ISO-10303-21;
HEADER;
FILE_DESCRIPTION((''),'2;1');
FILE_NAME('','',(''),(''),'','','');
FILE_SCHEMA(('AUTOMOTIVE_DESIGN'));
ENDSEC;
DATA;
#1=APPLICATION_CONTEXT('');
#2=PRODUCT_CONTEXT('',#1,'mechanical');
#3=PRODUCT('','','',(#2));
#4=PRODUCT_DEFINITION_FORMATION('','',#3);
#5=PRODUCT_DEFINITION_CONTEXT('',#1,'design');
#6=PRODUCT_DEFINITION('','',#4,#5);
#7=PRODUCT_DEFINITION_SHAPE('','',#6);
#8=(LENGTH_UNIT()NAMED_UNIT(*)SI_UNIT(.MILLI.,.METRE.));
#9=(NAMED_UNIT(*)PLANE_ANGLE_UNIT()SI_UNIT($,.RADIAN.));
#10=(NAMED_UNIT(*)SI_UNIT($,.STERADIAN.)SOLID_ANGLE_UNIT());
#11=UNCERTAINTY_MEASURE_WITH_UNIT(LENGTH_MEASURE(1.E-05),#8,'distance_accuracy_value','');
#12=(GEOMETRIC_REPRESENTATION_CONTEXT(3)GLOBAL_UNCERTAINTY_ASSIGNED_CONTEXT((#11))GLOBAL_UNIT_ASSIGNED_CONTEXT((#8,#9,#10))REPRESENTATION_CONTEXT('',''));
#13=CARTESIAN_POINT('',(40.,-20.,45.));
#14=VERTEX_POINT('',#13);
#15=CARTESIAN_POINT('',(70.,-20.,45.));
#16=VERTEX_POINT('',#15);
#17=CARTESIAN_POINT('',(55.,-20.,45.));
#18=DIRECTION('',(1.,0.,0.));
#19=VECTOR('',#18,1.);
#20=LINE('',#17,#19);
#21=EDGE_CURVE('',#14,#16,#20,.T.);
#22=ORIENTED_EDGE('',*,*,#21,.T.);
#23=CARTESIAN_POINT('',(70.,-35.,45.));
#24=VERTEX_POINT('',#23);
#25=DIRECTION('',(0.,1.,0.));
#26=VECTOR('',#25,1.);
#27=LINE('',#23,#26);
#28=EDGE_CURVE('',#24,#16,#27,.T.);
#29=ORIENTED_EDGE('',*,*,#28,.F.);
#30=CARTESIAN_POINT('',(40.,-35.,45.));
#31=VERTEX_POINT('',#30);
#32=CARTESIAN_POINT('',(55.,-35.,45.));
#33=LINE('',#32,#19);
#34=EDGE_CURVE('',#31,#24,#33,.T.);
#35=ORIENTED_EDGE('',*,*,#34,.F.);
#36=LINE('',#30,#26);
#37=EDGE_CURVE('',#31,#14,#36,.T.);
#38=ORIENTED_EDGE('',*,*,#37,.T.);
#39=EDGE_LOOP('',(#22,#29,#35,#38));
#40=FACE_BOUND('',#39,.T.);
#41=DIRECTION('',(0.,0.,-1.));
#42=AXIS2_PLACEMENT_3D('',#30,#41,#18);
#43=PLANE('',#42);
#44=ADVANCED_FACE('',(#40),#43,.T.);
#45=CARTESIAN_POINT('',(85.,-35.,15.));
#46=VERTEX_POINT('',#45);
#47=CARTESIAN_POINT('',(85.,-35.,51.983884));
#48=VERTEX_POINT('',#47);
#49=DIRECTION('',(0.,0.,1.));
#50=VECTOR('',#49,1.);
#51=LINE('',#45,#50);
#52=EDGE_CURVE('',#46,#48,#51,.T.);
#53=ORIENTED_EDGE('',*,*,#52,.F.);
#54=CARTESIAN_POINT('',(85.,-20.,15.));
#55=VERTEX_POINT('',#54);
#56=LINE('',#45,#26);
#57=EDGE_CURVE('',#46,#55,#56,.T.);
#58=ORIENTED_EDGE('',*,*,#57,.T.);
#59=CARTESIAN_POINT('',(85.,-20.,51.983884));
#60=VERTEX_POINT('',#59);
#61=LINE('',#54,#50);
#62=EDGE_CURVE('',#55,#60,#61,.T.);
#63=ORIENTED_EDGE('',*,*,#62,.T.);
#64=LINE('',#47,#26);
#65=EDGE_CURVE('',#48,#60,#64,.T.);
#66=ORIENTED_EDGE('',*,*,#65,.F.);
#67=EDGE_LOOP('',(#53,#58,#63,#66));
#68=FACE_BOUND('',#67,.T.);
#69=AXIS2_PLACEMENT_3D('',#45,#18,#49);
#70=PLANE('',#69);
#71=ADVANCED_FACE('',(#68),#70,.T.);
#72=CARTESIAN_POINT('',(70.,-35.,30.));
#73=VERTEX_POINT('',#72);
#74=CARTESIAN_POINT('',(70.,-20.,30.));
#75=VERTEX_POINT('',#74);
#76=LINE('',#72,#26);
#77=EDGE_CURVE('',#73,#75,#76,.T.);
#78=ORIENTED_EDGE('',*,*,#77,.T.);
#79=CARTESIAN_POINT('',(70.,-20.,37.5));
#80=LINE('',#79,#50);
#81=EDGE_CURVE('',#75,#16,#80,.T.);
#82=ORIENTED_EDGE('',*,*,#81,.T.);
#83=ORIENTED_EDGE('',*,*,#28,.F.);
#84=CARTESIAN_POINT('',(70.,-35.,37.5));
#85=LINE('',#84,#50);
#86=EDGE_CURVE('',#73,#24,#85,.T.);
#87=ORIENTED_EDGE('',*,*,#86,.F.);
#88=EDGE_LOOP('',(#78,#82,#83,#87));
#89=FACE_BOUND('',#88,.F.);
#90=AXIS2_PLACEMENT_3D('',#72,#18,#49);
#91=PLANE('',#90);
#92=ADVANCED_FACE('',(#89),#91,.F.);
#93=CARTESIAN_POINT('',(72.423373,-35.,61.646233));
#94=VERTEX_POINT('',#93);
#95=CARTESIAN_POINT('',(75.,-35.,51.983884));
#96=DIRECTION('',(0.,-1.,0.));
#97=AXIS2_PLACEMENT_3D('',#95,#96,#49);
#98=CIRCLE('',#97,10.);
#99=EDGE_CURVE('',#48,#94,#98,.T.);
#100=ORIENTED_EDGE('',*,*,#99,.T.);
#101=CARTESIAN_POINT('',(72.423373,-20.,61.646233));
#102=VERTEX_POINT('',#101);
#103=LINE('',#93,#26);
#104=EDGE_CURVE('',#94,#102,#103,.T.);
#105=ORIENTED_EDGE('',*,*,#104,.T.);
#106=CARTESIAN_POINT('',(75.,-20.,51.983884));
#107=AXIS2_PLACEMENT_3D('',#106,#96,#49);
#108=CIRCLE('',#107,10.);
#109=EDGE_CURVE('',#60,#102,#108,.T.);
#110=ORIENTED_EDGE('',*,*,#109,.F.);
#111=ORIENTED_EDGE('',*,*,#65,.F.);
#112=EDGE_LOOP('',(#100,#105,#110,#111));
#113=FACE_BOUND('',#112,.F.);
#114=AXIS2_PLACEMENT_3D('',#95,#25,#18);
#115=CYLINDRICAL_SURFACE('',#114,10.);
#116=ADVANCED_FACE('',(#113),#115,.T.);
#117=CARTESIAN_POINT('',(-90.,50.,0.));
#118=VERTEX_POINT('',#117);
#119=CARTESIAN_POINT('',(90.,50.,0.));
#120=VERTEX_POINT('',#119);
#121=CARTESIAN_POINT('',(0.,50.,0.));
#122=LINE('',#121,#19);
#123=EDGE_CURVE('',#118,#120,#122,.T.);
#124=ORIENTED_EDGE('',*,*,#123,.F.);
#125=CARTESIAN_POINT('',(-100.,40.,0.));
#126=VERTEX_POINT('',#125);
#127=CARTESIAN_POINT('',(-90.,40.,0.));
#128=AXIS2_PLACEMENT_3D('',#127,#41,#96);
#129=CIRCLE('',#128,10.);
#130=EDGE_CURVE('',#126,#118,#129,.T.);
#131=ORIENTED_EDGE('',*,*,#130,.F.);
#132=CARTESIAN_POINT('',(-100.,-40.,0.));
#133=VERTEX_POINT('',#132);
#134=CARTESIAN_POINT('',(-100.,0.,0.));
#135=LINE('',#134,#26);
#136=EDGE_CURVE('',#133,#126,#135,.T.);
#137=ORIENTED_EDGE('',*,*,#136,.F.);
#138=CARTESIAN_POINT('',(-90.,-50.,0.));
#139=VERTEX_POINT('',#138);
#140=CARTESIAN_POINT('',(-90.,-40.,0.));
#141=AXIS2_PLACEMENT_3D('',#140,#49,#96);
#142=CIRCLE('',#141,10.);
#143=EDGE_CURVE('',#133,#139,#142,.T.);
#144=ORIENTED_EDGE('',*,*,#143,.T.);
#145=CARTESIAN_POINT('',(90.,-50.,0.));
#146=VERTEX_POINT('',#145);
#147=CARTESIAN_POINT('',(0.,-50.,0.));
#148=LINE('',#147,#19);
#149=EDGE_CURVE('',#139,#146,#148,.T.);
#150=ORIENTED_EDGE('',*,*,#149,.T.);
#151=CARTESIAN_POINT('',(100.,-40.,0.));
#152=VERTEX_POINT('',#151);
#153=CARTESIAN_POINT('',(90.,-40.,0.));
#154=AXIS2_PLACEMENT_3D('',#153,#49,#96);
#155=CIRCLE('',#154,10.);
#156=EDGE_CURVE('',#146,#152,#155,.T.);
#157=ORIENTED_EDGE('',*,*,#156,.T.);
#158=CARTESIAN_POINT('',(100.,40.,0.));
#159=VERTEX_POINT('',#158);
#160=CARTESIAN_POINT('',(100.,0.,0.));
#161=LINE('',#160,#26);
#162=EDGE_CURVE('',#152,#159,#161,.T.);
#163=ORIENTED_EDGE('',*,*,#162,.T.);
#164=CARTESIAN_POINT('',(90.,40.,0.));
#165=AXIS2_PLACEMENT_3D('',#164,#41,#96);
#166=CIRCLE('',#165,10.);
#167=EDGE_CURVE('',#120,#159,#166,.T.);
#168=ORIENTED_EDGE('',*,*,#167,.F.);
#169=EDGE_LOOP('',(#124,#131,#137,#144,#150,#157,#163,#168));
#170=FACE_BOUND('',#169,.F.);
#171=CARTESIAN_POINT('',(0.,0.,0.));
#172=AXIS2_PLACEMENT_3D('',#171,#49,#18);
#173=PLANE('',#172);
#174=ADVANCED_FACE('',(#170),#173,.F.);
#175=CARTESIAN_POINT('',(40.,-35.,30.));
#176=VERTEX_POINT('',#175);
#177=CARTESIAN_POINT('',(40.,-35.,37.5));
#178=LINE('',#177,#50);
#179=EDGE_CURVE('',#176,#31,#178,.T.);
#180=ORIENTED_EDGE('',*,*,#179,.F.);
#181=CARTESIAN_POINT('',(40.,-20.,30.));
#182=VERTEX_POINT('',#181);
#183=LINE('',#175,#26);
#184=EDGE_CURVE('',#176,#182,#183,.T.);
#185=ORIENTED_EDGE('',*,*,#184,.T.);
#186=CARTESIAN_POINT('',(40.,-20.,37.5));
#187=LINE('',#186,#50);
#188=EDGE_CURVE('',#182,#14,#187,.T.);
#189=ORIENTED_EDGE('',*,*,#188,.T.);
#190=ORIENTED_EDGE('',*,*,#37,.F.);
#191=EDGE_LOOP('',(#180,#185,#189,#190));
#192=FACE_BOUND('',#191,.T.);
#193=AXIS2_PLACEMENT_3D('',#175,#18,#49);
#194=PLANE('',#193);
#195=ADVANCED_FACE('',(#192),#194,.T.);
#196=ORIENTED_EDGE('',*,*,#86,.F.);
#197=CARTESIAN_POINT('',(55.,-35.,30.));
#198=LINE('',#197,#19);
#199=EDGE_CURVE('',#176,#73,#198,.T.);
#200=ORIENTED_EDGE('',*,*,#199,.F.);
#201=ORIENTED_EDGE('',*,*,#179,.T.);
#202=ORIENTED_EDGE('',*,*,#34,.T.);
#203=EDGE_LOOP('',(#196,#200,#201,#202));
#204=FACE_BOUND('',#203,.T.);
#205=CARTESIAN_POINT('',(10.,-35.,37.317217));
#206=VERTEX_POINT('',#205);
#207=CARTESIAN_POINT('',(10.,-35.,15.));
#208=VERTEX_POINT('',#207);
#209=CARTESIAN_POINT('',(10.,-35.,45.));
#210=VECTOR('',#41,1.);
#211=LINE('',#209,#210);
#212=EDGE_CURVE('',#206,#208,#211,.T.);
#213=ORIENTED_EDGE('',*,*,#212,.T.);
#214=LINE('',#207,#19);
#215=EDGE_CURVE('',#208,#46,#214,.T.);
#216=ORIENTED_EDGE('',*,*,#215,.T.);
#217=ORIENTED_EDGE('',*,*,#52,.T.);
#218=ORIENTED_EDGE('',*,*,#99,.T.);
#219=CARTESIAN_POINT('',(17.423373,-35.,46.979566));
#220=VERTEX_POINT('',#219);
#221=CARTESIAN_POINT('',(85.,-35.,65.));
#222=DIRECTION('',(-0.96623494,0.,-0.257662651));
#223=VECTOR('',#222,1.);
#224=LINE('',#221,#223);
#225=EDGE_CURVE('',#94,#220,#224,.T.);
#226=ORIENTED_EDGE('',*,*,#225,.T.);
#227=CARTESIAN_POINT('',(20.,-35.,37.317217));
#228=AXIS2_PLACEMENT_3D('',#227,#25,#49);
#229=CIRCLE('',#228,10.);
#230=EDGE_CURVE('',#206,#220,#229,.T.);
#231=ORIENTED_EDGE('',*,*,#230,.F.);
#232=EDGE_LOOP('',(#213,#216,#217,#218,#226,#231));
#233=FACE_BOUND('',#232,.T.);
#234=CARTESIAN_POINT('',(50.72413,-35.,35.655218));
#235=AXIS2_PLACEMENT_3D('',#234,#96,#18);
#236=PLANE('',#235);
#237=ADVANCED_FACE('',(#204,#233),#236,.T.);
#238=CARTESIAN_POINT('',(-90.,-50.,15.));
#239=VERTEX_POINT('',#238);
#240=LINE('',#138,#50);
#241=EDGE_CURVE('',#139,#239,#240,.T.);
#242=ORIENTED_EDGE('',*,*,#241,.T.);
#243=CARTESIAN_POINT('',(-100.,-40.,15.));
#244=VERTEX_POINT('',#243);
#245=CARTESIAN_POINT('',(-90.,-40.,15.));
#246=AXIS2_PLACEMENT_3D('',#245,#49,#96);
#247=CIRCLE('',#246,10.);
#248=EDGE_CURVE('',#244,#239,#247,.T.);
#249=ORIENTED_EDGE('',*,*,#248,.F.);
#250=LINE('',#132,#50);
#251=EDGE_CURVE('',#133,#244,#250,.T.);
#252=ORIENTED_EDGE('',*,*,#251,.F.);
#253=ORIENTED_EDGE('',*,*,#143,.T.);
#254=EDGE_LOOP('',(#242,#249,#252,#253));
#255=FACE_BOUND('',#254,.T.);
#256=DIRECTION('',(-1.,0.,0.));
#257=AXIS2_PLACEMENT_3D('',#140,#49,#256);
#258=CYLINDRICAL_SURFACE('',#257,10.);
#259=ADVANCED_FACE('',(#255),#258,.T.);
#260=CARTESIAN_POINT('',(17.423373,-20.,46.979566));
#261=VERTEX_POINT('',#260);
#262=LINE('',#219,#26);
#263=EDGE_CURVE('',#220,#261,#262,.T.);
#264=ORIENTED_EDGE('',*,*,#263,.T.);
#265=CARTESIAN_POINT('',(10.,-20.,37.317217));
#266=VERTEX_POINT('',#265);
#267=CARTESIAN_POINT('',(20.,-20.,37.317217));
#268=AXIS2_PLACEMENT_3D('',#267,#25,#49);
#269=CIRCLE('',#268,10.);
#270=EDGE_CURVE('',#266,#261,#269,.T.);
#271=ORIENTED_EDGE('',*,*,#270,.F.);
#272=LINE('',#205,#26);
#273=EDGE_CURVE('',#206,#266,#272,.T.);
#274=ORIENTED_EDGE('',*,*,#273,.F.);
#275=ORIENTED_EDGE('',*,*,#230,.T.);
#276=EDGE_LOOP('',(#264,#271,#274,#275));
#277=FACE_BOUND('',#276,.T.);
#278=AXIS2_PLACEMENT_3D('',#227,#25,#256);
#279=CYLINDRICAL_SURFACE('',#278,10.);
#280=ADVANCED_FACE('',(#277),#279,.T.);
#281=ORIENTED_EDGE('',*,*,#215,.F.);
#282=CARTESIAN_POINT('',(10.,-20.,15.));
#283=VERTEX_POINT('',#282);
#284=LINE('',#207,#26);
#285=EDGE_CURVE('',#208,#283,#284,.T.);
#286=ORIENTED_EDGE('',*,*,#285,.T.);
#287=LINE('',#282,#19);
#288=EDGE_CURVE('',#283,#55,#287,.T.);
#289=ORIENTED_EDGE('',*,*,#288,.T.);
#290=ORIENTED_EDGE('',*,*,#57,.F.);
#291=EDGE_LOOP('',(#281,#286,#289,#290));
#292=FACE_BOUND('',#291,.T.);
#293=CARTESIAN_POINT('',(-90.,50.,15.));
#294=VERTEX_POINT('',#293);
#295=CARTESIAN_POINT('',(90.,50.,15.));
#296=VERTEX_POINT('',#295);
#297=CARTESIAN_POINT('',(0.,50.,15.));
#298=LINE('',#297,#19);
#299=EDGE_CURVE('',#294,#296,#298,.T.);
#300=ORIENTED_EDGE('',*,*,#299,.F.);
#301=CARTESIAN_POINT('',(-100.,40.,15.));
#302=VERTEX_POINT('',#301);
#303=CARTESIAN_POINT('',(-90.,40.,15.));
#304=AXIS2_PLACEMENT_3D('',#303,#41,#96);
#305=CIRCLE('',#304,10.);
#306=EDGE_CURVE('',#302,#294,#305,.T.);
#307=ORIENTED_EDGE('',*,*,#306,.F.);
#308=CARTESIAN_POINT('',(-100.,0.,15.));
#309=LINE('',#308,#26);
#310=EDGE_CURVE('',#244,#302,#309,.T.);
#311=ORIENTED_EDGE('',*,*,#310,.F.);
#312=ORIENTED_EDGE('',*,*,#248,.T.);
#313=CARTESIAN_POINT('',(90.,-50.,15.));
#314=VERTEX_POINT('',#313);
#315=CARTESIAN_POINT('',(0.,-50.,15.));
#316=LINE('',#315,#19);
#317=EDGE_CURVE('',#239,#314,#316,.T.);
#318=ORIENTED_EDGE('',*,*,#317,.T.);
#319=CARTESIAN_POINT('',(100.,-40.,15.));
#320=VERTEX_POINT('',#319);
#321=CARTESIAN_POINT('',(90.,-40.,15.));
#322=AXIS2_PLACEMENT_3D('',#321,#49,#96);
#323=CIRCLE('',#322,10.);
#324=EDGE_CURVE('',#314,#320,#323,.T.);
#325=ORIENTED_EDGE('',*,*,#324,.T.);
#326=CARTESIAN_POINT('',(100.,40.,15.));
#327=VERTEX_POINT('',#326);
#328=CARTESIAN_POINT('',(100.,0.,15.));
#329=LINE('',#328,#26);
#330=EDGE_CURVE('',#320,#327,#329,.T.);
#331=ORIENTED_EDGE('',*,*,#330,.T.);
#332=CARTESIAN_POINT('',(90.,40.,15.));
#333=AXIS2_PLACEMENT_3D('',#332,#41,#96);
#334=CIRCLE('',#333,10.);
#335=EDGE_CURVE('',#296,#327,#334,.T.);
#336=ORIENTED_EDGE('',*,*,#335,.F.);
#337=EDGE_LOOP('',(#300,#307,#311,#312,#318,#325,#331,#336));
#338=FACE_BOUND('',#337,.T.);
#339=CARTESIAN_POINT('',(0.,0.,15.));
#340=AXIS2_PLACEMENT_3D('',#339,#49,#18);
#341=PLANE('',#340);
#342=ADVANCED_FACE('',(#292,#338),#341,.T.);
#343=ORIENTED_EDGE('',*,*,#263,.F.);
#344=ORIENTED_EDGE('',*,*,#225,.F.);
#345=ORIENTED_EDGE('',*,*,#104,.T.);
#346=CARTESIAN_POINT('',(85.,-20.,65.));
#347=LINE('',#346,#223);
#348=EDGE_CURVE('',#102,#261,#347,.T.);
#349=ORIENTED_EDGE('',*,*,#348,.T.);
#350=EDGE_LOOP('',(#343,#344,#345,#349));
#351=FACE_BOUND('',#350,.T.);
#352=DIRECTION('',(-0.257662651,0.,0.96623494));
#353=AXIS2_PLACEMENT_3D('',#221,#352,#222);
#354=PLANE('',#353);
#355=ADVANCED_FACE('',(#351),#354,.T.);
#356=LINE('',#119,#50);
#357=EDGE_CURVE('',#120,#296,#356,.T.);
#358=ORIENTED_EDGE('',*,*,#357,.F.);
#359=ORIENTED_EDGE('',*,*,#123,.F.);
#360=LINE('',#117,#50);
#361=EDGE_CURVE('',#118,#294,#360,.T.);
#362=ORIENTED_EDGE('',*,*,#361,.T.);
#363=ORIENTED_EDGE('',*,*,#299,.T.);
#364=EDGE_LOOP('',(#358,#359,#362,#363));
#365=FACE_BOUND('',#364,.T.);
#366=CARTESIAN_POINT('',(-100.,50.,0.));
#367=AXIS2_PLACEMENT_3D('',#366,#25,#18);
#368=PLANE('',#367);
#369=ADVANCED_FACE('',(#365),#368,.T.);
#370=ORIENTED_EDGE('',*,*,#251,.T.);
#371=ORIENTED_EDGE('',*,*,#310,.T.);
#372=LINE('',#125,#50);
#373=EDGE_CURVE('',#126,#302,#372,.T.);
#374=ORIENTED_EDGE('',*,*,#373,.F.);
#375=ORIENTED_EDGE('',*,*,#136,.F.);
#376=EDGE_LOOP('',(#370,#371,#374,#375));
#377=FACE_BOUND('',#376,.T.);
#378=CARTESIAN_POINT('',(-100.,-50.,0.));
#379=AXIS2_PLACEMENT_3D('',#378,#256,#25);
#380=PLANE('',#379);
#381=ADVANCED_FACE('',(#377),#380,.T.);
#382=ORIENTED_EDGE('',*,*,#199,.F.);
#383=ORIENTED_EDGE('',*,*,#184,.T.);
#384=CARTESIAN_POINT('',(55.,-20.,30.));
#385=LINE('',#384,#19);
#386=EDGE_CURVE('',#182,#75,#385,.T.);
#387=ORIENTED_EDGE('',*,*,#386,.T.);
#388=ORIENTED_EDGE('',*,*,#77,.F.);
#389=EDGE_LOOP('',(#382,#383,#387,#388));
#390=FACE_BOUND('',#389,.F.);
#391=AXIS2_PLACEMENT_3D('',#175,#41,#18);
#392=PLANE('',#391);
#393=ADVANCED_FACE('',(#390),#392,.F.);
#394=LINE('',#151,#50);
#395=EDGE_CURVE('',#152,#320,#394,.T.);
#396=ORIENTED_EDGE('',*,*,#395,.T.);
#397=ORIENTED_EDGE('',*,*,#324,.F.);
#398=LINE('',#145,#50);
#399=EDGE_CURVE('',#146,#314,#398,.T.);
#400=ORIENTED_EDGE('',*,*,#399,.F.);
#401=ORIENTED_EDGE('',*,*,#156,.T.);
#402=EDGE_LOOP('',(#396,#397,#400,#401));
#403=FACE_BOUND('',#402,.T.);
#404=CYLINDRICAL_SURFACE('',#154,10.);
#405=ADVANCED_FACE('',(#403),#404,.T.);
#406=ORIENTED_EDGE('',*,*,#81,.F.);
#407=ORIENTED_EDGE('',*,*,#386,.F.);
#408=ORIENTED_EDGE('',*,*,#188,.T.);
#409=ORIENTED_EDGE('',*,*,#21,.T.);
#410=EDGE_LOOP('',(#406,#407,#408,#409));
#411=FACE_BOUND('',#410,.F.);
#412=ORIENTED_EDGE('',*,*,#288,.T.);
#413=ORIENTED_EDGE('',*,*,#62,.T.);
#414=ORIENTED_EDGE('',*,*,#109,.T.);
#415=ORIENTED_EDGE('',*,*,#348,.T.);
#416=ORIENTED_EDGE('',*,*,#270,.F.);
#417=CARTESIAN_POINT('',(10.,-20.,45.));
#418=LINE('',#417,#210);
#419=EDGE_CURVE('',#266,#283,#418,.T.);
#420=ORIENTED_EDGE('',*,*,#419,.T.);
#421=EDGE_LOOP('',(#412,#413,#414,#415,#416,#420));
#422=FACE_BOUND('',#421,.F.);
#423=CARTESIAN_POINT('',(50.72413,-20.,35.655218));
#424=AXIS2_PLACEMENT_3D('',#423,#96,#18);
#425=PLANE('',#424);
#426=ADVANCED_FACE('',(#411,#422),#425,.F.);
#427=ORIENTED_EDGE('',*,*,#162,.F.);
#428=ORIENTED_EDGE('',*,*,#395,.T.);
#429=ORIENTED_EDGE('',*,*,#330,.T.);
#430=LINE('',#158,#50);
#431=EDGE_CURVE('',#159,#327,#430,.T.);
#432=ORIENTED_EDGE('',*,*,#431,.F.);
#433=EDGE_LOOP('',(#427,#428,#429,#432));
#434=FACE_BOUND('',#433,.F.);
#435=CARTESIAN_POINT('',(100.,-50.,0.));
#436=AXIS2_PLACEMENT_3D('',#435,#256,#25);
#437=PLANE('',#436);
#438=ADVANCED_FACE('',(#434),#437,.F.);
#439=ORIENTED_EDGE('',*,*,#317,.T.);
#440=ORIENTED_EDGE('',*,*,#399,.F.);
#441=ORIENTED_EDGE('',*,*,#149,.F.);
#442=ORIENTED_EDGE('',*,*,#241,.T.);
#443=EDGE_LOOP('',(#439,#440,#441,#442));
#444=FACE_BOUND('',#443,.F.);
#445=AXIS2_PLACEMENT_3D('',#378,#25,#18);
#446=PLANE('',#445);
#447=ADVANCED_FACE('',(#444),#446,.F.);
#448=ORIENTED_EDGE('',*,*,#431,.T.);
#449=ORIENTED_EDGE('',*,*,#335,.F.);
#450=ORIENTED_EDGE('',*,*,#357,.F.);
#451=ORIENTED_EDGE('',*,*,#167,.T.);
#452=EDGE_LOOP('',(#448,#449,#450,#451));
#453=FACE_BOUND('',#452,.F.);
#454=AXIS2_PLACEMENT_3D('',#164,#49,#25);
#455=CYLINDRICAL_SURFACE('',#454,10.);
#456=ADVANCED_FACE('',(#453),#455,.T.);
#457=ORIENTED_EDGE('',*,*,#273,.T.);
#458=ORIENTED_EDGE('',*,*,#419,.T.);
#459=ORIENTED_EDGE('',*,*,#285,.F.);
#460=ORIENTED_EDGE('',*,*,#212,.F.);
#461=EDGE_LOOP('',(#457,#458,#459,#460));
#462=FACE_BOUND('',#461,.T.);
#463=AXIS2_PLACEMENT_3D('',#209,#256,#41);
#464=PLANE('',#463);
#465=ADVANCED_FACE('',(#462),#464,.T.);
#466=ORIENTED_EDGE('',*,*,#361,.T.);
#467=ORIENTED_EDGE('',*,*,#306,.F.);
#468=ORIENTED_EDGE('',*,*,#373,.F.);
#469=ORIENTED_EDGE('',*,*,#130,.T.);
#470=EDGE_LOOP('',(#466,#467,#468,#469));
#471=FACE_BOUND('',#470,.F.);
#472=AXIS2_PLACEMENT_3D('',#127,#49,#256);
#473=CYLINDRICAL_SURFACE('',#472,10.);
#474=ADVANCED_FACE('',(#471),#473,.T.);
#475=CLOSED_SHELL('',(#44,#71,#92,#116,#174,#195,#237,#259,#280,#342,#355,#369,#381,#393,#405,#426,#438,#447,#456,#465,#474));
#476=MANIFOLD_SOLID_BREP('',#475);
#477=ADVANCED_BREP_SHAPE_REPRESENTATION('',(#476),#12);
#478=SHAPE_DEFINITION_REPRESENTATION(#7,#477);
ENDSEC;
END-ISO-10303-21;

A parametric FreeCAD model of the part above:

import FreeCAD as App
import Part
import Sketcher
from FreeCAD import Vector
Q = App.Units.Quantity


def edges_at(feature, points):
    """Names of the edges that pass closest to the given points."""
    edges = feature.Shape.Edges
    near = lambda p: min(range(len(edges)), key=lambda i: edges[i].distToShape(Part.Vertex(*p))[0])
    return sorted({f"Edge{near(p) + 1}" for p in points})


def add_polygon(sketch, points):
    """Adds a closed chain of lines whose ends are joined by coincident constraints."""
    first, n = sketch.GeometryCount, len(points)
    for a, b in zip(points, points[1:] + points[:1]):
        sketch.addGeometry(Part.LineSegment(App.Vector(*a, 0), App.Vector(*b, 0)), False)
    for i in range(n):
        sketch.addConstraint(Sketcher.Constraint("Coincident", first + i, 2, first + (i + 1) % n, 1))

doc = App.newDocument("Part")
body = doc.addObject("PartDesign::Body", "Body")

sketch1 = body.newObject("Sketcher::SketchObject", "Sketch")
sketch1.AttachmentSupport = (doc.getObject("XY_Plane"), [""])
sketch1.MapMode = "FlatFace"
add_polygon(sketch1, [(-100, 50), (-100, -50), (100, -50), (100, 50)])
sketch1.addConstraint(Sketcher.Constraint("Vertical", 0))
sketch1.addConstraint(Sketcher.Constraint("Horizontal", 1))
sketch1.addConstraint(Sketcher.Constraint("Vertical", 2))
sketch1.addConstraint(Sketcher.Constraint("Horizontal", 3))
sketch1.addConstraint(Sketcher.Constraint("Symmetric", 0, 2, 2, 2, -1, 1))
sketch1.addConstraint(Sketcher.Constraint("DistanceX", 1, 1, 1, 2, Q("200 mm")))
sketch1.addConstraint(Sketcher.Constraint("DistanceY", 0, 2, 0, 1, Q("100 mm")))
pad1 = body.newObject("PartDesign::Pad", "Pad")
pad1.Profile = sketch1
pad1.Length = 15

sketch2 = body.newObject("Sketcher::SketchObject", "Sketch001")
sketch2.AttachmentSupport = (doc.getObject("XZ_Plane"), [""])
sketch2.MapMode = "FlatFace"
sketch2.AttachmentOffset = App.Placement(Vector(0, 0, 35), App.Rotation())
add_polygon(sketch2, [(10, 15), (85, 15), (85, 65), (10, 45)])
sketch2.addConstraint(Sketcher.Constraint("Horizontal", 0))
sketch2.addConstraint(Sketcher.Constraint("Vertical", 1))
sketch2.addConstraint(Sketcher.Constraint("Vertical", 3))
sketch2.addConstraint(Sketcher.Constraint("DistanceX", 0, 1, 0, 2, Q("75 mm")))
sketch2.addConstraint(Sketcher.Constraint("DistanceY", 1, 1, 1, 2, Q("50 mm")))
sketch2.addConstraint(Sketcher.Constraint("DistanceY", 3, 2, 3, 1, Q("30 mm")))
sketch2.addConstraint(Sketcher.Constraint("DistanceX", -1, 1, 0, 2, Q("85 mm")))
sketch2.addConstraint(Sketcher.Constraint("DistanceY", -1, 1, 0, 2, Q("15 mm")))
pad2 = body.newObject("PartDesign::Pad", "Pad001")
pad2.Profile = sketch2
pad2.Length = 15
pad2.Reversed = True

sketch3 = body.newObject("Sketcher::SketchObject", "Sketch002")
sketch3.AttachmentSupport = (doc.getObject("XZ_Plane"), [""])
sketch3.MapMode = "FlatFace"
sketch3.AttachmentOffset = App.Placement(Vector(0, 0, 35), App.Rotation())
add_polygon(sketch3, [(40, 45), (40, 30), (70, 30), (70, 45)])
sketch3.addConstraint(Sketcher.Constraint("Vertical", 0))
sketch3.addConstraint(Sketcher.Constraint("Horizontal", 1))
sketch3.addConstraint(Sketcher.Constraint("Vertical", 2))
sketch3.addConstraint(Sketcher.Constraint("Horizontal", 3))
sketch3.addConstraint(Sketcher.Constraint("DistanceX", 1, 1, 1, 2, Q("30 mm")))
sketch3.addConstraint(Sketcher.Constraint("DistanceY", 0, 2, 0, 1, Q("15 mm")))
sketch3.addConstraint(Sketcher.Constraint("DistanceX", -1, 1, 0, 2, Q("40 mm")))
sketch3.addConstraint(Sketcher.Constraint("DistanceY", -1, 1, 0, 2, Q("30 mm")))
pocket1 = body.newObject("PartDesign::Pocket", "Pocket")
pocket1.Profile = sketch3
pocket1.Type = "ThroughAll"
doc.recompute()

fillet = body.newObject("PartDesign::Fillet", "Fillet")
fillet.Base = (pocket1, edges_at(pocket1, [
    (10, -27.5, 45),
    (85, -27.5, 65),
    (100, -50, 7.5),
    (-100, -50, 7.5),
    (-100, 50, 7.5),
    (100, 50, 7.5),
]))
fillet.Radius = 10

doc.recompute()
